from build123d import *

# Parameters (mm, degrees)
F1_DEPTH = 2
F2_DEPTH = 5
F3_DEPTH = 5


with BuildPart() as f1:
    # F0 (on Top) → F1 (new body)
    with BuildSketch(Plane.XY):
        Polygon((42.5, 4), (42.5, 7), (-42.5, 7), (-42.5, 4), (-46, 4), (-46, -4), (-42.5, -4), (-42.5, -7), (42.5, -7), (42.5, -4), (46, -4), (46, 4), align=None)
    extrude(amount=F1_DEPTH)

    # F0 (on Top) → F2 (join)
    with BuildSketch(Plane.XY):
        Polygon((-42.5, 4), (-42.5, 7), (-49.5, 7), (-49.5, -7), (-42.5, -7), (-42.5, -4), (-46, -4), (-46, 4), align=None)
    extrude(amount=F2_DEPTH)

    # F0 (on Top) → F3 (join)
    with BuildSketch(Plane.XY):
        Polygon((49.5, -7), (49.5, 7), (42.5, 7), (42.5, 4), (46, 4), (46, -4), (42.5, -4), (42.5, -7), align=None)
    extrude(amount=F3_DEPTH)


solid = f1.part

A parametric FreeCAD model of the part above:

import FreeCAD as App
import Part
import Sketcher
from FreeCAD import Vector
Q = App.Units.Quantity

doc = App.newDocument("Part")
body = doc.addObject("PartDesign::Body", "Body")

# Sketch on XY plane
sketch1 = body.newObject("Sketcher::SketchObject", "Sketch")
sketch1.AttachmentSupport = (doc.getObject("XY_Plane"), [""])
sketch1.MapMode = "FlatFace"
sketch1.addGeometry(Part.LineSegment(Vector(42.5, 4, 0), Vector(42.5, 7, 0)), False)
sketch1.addGeometry(Part.LineSegment(Vector(42.5, 7, 0), Vector(-42.5, 7, 0)), False)
sketch1.addGeometry(Part.LineSegment(Vector(-42.5, 7, 0), Vector(-42.5, 4, 0)), False)
sketch1.addGeometry(Part.LineSegment(Vector(-42.5, 4, 0), Vector(-46, 4, 0)), False)
sketch1.addGeometry(Part.LineSegment(Vector(-46, 4, 0), Vector(-46, -4, 0)), False)
sketch1.addGeometry(Part.LineSegment(Vector(-46, -4, 0), Vector(-42.5, -4, 0)), False)
sketch1.addGeometry(Part.LineSegment(Vector(-42.5, -4, 0), Vector(-42.5, -7, 0)), False)
sketch1.addGeometry(Part.LineSegment(Vector(-42.5, -7, 0), Vector(42.5, -7, 0)), False)
sketch1.addGeometry(Part.LineSegment(Vector(42.5, -7, 0), Vector(42.5, -4, 0)), False)
sketch1.addGeometry(Part.LineSegment(Vector(42.5, -4, 0), Vector(46, -4, 0)), False)
sketch1.addGeometry(Part.LineSegment(Vector(46, -4, 0), Vector(46, 4, 0)), False)
sketch1.addGeometry(Part.LineSegment(Vector(46, 4, 0), Vector(42.5, 4, 0)), False)
sketch1.addConstraint(Sketcher.Constraint("Coincident", 0, 2, 1, 1))
sketch1.addConstraint(Sketcher.Constraint("Coincident", 1, 2, 2, 1))
sketch1.addConstraint(Sketcher.Constraint("Coincident", 2, 2, 3, 1))
sketch1.addConstraint(Sketcher.Constraint("Coincident", 3, 2, 4, 1))
sketch1.addConstraint(Sketcher.Constraint("Coincident", 4, 2, 5, 1))
sketch1.addConstraint(Sketcher.Constraint("Coincident", 5, 2, 6, 1))
sketch1.addConstraint(Sketcher.Constraint("Coincident", 6, 2, 7, 1))
sketch1.addConstraint(Sketcher.Constraint("Coincident", 7, 2, 8, 1))
sketch1.addConstraint(Sketcher.Constraint("Coincident", 8, 2, 9, 1))
sketch1.addConstraint(Sketcher.Constraint("Coincident", 9, 2, 10, 1))
sketch1.addConstraint(Sketcher.Constraint("Coincident", 10, 2, 11, 1))
sketch1.addConstraint(Sketcher.Constraint("Coincident", 11, 2, 0, 1))
sketch1.addConstraint(Sketcher.Constraint("Vertical", 0))
sketch1.addConstraint(Sketcher.Constraint("Horizontal", 1))
sketch1.addConstraint(Sketcher.Constraint("Vertical", 2))
sketch1.addConstraint(Sketcher.Constraint("Horizontal", 3))
sketch1.addConstraint(Sketcher.Constraint("Vertical", 4))
sketch1.addConstraint(Sketcher.Constraint("Horizontal", 5))
sketch1.addConstraint(Sketcher.Constraint("Vertical", 6))
sketch1.addConstraint(Sketcher.Constraint("Horizontal", 7))
sketch1.addConstraint(Sketcher.Constraint("Vertical", 8))
sketch1.addConstraint(Sketcher.Constraint("Horizontal", 9))
sketch1.addConstraint(Sketcher.Constraint("Vertical", 10))
sketch1.addConstraint(Sketcher.Constraint("Horizontal", 11))
sketch1.addConstraint(Sketcher.Constraint("Symmetric", 0, 2, 6, 2, -1, 1))
sketch1.addConstraint(Sketcher.Constraint("Symmetric", 2, 2, 8, 2, -1, 1))
sketch1.addConstraint(Sketcher.Constraint("Symmetric", 4, 2, 10, 2, -1, 1))
sketch1.addConstraint(Sketcher.Constraint("Symmetric", 5, 2, 8, 2, -2))
sketch1.addConstraint(Sketcher.Constraint("DistanceX", 1, 2, 1, 1, Q("85 mm")))
sketch1.addConstraint(Sketcher.Constraint("DistanceY", 0, 1, 0, 2, Q("3 mm")))
sketch1.addConstraint(Sketcher.Constraint("DistanceY", 4, 2, 4, 1, Q("8 mm")))
sketch1.addConstraint(Sketcher.Constraint("DistanceX", 3, 2, 3, 1, Q("3.5 mm")))
pad1 = body.newObject("PartDesign::Pad", "Pad")
pad1.Profile = sketch1
pad1.Length = 2

# Sketch on XY plane
sketch2 = body.newObject("Sketcher::SketchObject", "Sketch001")
sketch2.AttachmentSupport = (doc.getObject("XY_Plane"), [""])
sketch2.MapMode = "FlatFace"
sketch2.addGeometry(Part.LineSegment(Vector(-42.5, 4, 0), Vector(-42.5, 7, 0)), False)
sketch2.addGeometry(Part.LineSegment(Vector(-42.5, 7, 0), Vector(-49.5, 7, 0)), False)
sketch2.addGeometry(Part.LineSegment(Vector(-49.5, 7, 0), Vector(-49.5, -7, 0)), False)
sketch2.addGeometry(Part.LineSegment(Vector(-49.5, -7, 0), Vector(-42.5, -7, 0)), False)
sketch2.addGeometry(Part.LineSegment(Vector(-42.5, -7, 0), Vector(-42.5, -4, 0)), False)
sketch2.addGeometry(Part.LineSegment(Vector(-42.5, -4, 0), Vector(-46, -4, 0)), False)
sketch2.addGeometry(Part.LineSegment(Vector(-46, -4, 0), Vector(-46, 4, 0)), False)
sketch2.addGeometry(Part.LineSegment(Vector(-46, 4, 0), Vector(-42.5, 4, 0)), False)
sketch2.addConstraint(Sketcher.Constraint("Coincident", 0, 2, 1, 1))
sketch2.addConstraint(Sketcher.Constraint("Coincident", 1, 2, 2, 1))
sketch2.addConstraint(Sketcher.Constraint("Coincident", 2, 2, 3, 1))
sketch2.addConstraint(Sketcher.Constraint("Coincident", 3, 2, 4, 1))
sketch2.addConstraint(Sketcher.Constraint("Coincident", 4, 2, 5, 1))
sketch2.addConstraint(Sketcher.Constraint("Coincident", 5, 2, 6, 1))
sketch2.addConstraint(Sketcher.Constraint("Coincident", 6, 2, 7, 1))
sketch2.addConstraint(Sketcher.Constraint("Coincident", 7, 2, 0, 1))
sketch2.addConstraint(Sketcher.Constraint("Vertical", 0))
sketch2.addConstraint(Sketcher.Constraint("Horizontal", 1))
sketch2.addConstraint(Sketcher.Constraint("Vertical", 2))
sketch2.addConstraint(Sketcher.Constraint("Horizontal", 3))
sketch2.addConstraint(Sketcher.Constraint("Vertical", 4))
sketch2.addConstraint(Sketcher.Constraint("Horizontal", 5))
sketch2.addConstraint(Sketcher.Constraint("Vertical", 6))
sketch2.addConstraint(Sketcher.Constraint("Horizontal", 7))
sketch2.addConstraint(Sketcher.Constraint("Symmetric", 0, 2, 3, 2, -1))
sketch2.addConstraint(Sketcher.Constraint("Equal", 0, 4))
sketch2.addConstraint(Sketcher.Constraint("DistanceX", 1, 2, 1, 1, Q("7 mm")))
sketch2.addConstraint(Sketcher.Constraint("DistanceY", 0, 1, 0, 2, Q("3 mm")))
sketch2.addConstraint(Sketcher.Constraint("DistanceY", 2, 2, 2, 1, Q("14 mm")))
sketch2.addConstraint(Sketcher.Constraint("DistanceX", 5, 2, 5, 1, Q("3.5 mm")))
sketch2.addConstraint(Sketcher.Constraint("DistanceX", 5, 2, -1, 1, Q("46 mm")))
pad2 = body.newObject("PartDesign::Pad", "Pad001")
pad2.Profile = sketch2
pad2.Length = 5

# Sketch on XY plane
sketch3 = body.newObject("Sketcher::SketchObject", "Sketch002")
sketch3.AttachmentSupport = (doc.getObject("XY_Plane"), [""])
sketch3.MapMode = "FlatFace"
sketch3.addGeometry(Part.LineSegment(Vector(49.5, -7, 0), Vector(49.5, 7, 0)), False)
sketch3.addGeometry(Part.LineSegment(Vector(49.5, 7, 0), Vector(42.5, 7, 0)), False)
sketch3.addGeometry(Part.LineSegment(Vector(42.5, 7, 0), Vector(42.5, 4, 0)), False)
sketch3.addGeometry(Part.LineSegment(Vector(42.5, 4, 0), Vector(46, 4, 0)), False)
sketch3.addGeometry(Part.LineSegment(Vector(46, 4, 0), Vector(46, -4, 0)), False)
sketch3.addGeometry(Part.LineSegment(Vector(46, -4, 0), Vector(42.5, -4, 0)), False)
sketch3.addGeometry(Part.LineSegment(Vector(42.5, -4, 0), Vector(42.5, -7, 0)), False)
sketch3.addGeometry(Part.LineSegment(Vector(42.5, -7, 0), Vector(49.5, -7, 0)), False)
sketch3.addConstraint(Sketcher.Constraint("Coincident", 0, 2, 1, 1))
sketch3.addConstraint(Sketcher.Constraint("Coincident", 1, 2, 2, 1))
sketch3.addConstraint(Sketcher.Constraint("Coincident", 2, 2, 3, 1))
sketch3.addConstraint(Sketcher.Constraint("Coincident", 3, 2, 4, 1))
sketch3.addConstraint(Sketcher.Constraint("Coincident", 4, 2, 5, 1))
sketch3.addConstraint(Sketcher.Constraint("Coincident", 5, 2, 6, 1))
sketch3.addConstraint(Sketcher.Constraint("Coincident", 6, 2, 7, 1))
sketch3.addConstraint(Sketcher.Constraint("Coincident", 7, 2, 0, 1))
sketch3.addConstraint(Sketcher.Constraint("Vertical", 0))
sketch3.addConstraint(Sketcher.Constraint("Horizontal", 1))
sketch3.addConstraint(Sketcher.Constraint("Vertical", 2))
sketch3.addConstraint(Sketcher.Constraint("Horizontal", 3))
sketch3.addConstraint(Sketcher.Constraint("Vertical", 4))
sketch3.addConstraint(Sketcher.Constraint("Horizontal", 5))
sketch3.addConstraint(Sketcher.Constraint("Vertical", 6))
sketch3.addConstraint(Sketcher.Constraint("Horizontal", 7))
sketch3.addConstraint(Sketcher.Constraint("Symmetric", 2, 2, 5, 2, -1))
sketch3.addConstraint(Sketcher.Constraint("Equal", 2, 6))
sketch3.addConstraint(Sketcher.Constraint("DistanceX", 1, 2, 1, 1, Q("7 mm")))
sketch3.addConstraint(Sketcher.Constraint("DistanceY", 0, 1, 0, 2, Q("14 mm")))
sketch3.addConstraint(Sketcher.Constraint("DistanceY", 2, 2, 2, 1, Q("3 mm")))
sketch3.addConstraint(Sketcher.Constraint("DistanceX", 3, 1, 3, 2, Q("3.5 mm")))
sketch3.addConstraint(Sketcher.Constraint("DistanceX", -1, 1, 3, 2, Q("46 mm")))
pad3 = body.newObject("PartDesign::Pad", "Pad002")
pad3.Profile = sketch3
pad3.Length = 5

doc.recompute()
